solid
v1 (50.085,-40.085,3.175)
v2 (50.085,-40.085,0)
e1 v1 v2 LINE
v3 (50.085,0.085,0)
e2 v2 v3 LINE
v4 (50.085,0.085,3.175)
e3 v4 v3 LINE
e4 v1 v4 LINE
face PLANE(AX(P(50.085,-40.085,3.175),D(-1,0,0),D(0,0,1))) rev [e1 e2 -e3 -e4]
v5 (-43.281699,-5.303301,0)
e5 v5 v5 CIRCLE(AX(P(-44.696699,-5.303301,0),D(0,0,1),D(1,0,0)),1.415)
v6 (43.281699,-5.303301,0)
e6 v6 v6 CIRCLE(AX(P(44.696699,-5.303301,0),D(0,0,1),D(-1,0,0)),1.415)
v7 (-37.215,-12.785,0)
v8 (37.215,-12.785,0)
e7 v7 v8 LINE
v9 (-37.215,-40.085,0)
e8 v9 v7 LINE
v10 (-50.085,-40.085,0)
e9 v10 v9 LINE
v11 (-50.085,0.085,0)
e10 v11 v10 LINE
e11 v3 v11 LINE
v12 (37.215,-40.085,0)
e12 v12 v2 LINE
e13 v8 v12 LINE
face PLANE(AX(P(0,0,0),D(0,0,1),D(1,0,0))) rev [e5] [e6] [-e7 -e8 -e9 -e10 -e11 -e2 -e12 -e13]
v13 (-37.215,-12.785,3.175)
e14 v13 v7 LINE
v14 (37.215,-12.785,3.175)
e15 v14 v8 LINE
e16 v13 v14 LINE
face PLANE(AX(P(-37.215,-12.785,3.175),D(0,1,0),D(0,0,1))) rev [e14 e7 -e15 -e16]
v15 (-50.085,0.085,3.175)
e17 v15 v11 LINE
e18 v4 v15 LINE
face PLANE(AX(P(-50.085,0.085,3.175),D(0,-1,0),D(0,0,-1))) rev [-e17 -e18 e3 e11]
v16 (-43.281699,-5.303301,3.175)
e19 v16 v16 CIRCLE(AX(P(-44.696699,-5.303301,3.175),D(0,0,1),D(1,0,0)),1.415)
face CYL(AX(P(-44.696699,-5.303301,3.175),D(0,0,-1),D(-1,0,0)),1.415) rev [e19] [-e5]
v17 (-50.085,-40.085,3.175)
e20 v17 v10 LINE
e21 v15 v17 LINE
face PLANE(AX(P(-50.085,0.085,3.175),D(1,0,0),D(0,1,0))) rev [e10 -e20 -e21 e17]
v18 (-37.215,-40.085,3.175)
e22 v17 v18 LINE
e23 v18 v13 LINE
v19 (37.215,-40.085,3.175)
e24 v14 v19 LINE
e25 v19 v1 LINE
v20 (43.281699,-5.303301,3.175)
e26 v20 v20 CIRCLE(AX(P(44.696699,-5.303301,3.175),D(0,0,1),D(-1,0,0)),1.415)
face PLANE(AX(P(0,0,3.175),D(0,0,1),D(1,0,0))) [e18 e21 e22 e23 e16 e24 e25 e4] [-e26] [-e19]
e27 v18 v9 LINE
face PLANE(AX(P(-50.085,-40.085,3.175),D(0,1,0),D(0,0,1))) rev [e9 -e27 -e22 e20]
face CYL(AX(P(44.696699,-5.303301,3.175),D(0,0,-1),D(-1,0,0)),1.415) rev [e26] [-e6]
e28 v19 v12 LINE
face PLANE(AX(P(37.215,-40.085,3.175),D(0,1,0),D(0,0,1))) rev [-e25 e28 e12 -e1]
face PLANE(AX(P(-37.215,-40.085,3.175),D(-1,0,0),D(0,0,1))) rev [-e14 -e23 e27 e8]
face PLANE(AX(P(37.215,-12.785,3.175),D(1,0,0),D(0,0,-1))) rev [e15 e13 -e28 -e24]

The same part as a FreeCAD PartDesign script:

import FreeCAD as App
import Part
import Sketcher

V = App.Vector


def add_polygon(sketch, points):
    """Adds a closed chain of lines whose ends are joined by coincident constraints."""
    first, n = sketch.GeometryCount, len(points)
    for a, b in zip(points, points[1:] + points[:1]):
        sketch.addGeometry(Part.LineSegment(App.Vector(*a, 0), App.Vector(*b, 0)), False)
    for i in range(n):
        sketch.addConstraint(Sketcher.Constraint("Coincident", first + i, 2, first + (i + 1) % n, 1))

doc = App.newDocument("Part")
body = doc.addObject("PartDesign::Body", "Body")

# Sketch on XY plane
sketch1 = doc.addObject("Sketcher::SketchObject", "Sketch")
body.addObject(sketch1)
sketch1.AttachmentSupport = (doc.XY_Plane, [""])
sketch1.MapMode = "FlatFace"
add_polygon(sketch1, [(50.1, -40.1), (50.1, 0.1), (-50.1, 0.1), (-50.1, -40.1), (-37.2, -40.1), (-37.2, -12.8), (37.2, -12.8), (37.2, -40.1)])  # lines 0-7
sketch1.addGeometry(Part.Circle(V(-44.7, -5.3, 0), V(0, 0, 1), 1.4), False)  # 8
sketch1.addGeometry(Part.Circle(V(44.7, -5.3, 0), V(0, 0, 1), 1.4), False)  # 9
sketch1.addConstraint(Sketcher.Constraint("Vertical", 0))
sketch1.addConstraint(Sketcher.Constraint("Horizontal", 1))
sketch1.addConstraint(Sketcher.Constraint("Vertical", 2))
sketch1.addConstraint(Sketcher.Constraint("Horizontal", 3))
sketch1.addConstraint(Sketcher.Constraint("Vertical", 4))
sketch1.addConstraint(Sketcher.Constraint("Horizontal", 5))
sketch1.addConstraint(Sketcher.Constraint("Vertical", 6))
sketch1.addConstraint(Sketcher.Constraint("Horizontal", 7))
sketch1.addConstraint(Sketcher.Constraint("Equal", 8, 9))
sketch1.addConstraint(Sketcher.Constraint("Symmetric", 8, 3, 9, 3, -2))
sketch1.addConstraint(Sketcher.Constraint("Symmetric", 3, 2, 6, 2, -2))
sketch1.addConstraint(Sketcher.Constraint("Equal", 3, 7))
sketch1.addConstraint(Sketcher.Constraint("Diameter", 8, 2.83))
sketch1.addConstraint(Sketcher.Constraint("DistanceY", 4, 1, 4, 2, 27.3))
sketch1.addConstraint(Sketcher.Constraint("DistanceX", 1, 2, 1, 1, 100.17))
sketch1.addConstraint(Sketcher.Constraint("DistanceX", 3, 1, 3, 2, 12.87))
sketch1.addConstraint(Sketcher.Constraint("DistanceY", 0, 1, 0, 2, 40.17))
sketch1.addConstraint(Sketcher.Constraint("DistanceY", -1, 1, 0, 2, 0.085))
sketch1.addConstraint(Sketcher.Constraint("DistanceX", 8, 3, -1, 1, 44.696699))
sketch1.addConstraint(Sketcher.Constraint("DistanceY", 8, 3, -1, 1, 5.303301))
pad1 = doc.addObject("PartDesign::Pad", "Pad")
body.addObject(pad1)
pad1.Profile = sketch1
pad1.Length = 3.175

doc.recompute()
